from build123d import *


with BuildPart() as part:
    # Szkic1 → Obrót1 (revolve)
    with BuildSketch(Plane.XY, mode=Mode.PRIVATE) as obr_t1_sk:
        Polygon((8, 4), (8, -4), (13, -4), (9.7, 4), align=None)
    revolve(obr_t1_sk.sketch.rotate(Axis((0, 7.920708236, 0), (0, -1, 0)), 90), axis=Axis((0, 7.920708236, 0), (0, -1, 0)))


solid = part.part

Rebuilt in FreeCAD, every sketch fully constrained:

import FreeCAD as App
import Part
import Sketcher
Q = App.Units.Quantity

doc = App.newDocument("Part")
body = doc.addObject("PartDesign::Body", "Body")

# Sketch on XY plane
sketch1 = body.newObject("Sketcher::SketchObject", "Sketch")
sketch1.AttachmentSupport = (doc.getObject("XY_Plane"), [""])
sketch1.MapMode = "FlatFace"
sketch1.addGeometry([
    Part.LineSegment(App.Vector(8, 4, 0), App.Vector(8, -4, 0)),
    Part.LineSegment(App.Vector(8, -4, 0), App.Vector(13, -4, 0)),
    Part.LineSegment(App.Vector(13, -4, 0), App.Vector(9.7, 4, 0)),
    Part.LineSegment(App.Vector(9.7, 4, 0), App.Vector(8, 4, 0)),
], False)
sketch1.addConstraint([
    Sketcher.Constraint("Coincident", 0, 2, 1, 1),
    Sketcher.Constraint("Coincident", 1, 2, 2, 1),
    Sketcher.Constraint("Coincident", 2, 2, 3, 1),
    Sketcher.Constraint("Coincident", 3, 2, 0, 1),
    Sketcher.Constraint("Vertical", 0),
    Sketcher.Constraint("Horizontal", 1),
    Sketcher.Constraint("Horizontal", 3),
    Sketcher.Constraint("DistanceX", 1, 1, 1, 2, Q("5 mm")),
    Sketcher.Constraint("DistanceY", 0, 2, 0, 1, Q("8 mm")),
    Sketcher.Constraint("DistanceX", 3, 2, 3, 1, Q("1.7 mm")),
    Sketcher.Constraint("DistanceX", -1, 1, 0, 2, Q("8 mm")),
    Sketcher.Constraint("DistanceY", 0, 2, -1, 1, Q("4 mm")),
])
revolution = body.newObject("PartDesign::Revolution", "Revolution")
revolution.Profile = sketch1
revolution.ReferenceAxis = (sketch1, ["V_Axis"])
revolution.Angle = 360

doc.recompute()
